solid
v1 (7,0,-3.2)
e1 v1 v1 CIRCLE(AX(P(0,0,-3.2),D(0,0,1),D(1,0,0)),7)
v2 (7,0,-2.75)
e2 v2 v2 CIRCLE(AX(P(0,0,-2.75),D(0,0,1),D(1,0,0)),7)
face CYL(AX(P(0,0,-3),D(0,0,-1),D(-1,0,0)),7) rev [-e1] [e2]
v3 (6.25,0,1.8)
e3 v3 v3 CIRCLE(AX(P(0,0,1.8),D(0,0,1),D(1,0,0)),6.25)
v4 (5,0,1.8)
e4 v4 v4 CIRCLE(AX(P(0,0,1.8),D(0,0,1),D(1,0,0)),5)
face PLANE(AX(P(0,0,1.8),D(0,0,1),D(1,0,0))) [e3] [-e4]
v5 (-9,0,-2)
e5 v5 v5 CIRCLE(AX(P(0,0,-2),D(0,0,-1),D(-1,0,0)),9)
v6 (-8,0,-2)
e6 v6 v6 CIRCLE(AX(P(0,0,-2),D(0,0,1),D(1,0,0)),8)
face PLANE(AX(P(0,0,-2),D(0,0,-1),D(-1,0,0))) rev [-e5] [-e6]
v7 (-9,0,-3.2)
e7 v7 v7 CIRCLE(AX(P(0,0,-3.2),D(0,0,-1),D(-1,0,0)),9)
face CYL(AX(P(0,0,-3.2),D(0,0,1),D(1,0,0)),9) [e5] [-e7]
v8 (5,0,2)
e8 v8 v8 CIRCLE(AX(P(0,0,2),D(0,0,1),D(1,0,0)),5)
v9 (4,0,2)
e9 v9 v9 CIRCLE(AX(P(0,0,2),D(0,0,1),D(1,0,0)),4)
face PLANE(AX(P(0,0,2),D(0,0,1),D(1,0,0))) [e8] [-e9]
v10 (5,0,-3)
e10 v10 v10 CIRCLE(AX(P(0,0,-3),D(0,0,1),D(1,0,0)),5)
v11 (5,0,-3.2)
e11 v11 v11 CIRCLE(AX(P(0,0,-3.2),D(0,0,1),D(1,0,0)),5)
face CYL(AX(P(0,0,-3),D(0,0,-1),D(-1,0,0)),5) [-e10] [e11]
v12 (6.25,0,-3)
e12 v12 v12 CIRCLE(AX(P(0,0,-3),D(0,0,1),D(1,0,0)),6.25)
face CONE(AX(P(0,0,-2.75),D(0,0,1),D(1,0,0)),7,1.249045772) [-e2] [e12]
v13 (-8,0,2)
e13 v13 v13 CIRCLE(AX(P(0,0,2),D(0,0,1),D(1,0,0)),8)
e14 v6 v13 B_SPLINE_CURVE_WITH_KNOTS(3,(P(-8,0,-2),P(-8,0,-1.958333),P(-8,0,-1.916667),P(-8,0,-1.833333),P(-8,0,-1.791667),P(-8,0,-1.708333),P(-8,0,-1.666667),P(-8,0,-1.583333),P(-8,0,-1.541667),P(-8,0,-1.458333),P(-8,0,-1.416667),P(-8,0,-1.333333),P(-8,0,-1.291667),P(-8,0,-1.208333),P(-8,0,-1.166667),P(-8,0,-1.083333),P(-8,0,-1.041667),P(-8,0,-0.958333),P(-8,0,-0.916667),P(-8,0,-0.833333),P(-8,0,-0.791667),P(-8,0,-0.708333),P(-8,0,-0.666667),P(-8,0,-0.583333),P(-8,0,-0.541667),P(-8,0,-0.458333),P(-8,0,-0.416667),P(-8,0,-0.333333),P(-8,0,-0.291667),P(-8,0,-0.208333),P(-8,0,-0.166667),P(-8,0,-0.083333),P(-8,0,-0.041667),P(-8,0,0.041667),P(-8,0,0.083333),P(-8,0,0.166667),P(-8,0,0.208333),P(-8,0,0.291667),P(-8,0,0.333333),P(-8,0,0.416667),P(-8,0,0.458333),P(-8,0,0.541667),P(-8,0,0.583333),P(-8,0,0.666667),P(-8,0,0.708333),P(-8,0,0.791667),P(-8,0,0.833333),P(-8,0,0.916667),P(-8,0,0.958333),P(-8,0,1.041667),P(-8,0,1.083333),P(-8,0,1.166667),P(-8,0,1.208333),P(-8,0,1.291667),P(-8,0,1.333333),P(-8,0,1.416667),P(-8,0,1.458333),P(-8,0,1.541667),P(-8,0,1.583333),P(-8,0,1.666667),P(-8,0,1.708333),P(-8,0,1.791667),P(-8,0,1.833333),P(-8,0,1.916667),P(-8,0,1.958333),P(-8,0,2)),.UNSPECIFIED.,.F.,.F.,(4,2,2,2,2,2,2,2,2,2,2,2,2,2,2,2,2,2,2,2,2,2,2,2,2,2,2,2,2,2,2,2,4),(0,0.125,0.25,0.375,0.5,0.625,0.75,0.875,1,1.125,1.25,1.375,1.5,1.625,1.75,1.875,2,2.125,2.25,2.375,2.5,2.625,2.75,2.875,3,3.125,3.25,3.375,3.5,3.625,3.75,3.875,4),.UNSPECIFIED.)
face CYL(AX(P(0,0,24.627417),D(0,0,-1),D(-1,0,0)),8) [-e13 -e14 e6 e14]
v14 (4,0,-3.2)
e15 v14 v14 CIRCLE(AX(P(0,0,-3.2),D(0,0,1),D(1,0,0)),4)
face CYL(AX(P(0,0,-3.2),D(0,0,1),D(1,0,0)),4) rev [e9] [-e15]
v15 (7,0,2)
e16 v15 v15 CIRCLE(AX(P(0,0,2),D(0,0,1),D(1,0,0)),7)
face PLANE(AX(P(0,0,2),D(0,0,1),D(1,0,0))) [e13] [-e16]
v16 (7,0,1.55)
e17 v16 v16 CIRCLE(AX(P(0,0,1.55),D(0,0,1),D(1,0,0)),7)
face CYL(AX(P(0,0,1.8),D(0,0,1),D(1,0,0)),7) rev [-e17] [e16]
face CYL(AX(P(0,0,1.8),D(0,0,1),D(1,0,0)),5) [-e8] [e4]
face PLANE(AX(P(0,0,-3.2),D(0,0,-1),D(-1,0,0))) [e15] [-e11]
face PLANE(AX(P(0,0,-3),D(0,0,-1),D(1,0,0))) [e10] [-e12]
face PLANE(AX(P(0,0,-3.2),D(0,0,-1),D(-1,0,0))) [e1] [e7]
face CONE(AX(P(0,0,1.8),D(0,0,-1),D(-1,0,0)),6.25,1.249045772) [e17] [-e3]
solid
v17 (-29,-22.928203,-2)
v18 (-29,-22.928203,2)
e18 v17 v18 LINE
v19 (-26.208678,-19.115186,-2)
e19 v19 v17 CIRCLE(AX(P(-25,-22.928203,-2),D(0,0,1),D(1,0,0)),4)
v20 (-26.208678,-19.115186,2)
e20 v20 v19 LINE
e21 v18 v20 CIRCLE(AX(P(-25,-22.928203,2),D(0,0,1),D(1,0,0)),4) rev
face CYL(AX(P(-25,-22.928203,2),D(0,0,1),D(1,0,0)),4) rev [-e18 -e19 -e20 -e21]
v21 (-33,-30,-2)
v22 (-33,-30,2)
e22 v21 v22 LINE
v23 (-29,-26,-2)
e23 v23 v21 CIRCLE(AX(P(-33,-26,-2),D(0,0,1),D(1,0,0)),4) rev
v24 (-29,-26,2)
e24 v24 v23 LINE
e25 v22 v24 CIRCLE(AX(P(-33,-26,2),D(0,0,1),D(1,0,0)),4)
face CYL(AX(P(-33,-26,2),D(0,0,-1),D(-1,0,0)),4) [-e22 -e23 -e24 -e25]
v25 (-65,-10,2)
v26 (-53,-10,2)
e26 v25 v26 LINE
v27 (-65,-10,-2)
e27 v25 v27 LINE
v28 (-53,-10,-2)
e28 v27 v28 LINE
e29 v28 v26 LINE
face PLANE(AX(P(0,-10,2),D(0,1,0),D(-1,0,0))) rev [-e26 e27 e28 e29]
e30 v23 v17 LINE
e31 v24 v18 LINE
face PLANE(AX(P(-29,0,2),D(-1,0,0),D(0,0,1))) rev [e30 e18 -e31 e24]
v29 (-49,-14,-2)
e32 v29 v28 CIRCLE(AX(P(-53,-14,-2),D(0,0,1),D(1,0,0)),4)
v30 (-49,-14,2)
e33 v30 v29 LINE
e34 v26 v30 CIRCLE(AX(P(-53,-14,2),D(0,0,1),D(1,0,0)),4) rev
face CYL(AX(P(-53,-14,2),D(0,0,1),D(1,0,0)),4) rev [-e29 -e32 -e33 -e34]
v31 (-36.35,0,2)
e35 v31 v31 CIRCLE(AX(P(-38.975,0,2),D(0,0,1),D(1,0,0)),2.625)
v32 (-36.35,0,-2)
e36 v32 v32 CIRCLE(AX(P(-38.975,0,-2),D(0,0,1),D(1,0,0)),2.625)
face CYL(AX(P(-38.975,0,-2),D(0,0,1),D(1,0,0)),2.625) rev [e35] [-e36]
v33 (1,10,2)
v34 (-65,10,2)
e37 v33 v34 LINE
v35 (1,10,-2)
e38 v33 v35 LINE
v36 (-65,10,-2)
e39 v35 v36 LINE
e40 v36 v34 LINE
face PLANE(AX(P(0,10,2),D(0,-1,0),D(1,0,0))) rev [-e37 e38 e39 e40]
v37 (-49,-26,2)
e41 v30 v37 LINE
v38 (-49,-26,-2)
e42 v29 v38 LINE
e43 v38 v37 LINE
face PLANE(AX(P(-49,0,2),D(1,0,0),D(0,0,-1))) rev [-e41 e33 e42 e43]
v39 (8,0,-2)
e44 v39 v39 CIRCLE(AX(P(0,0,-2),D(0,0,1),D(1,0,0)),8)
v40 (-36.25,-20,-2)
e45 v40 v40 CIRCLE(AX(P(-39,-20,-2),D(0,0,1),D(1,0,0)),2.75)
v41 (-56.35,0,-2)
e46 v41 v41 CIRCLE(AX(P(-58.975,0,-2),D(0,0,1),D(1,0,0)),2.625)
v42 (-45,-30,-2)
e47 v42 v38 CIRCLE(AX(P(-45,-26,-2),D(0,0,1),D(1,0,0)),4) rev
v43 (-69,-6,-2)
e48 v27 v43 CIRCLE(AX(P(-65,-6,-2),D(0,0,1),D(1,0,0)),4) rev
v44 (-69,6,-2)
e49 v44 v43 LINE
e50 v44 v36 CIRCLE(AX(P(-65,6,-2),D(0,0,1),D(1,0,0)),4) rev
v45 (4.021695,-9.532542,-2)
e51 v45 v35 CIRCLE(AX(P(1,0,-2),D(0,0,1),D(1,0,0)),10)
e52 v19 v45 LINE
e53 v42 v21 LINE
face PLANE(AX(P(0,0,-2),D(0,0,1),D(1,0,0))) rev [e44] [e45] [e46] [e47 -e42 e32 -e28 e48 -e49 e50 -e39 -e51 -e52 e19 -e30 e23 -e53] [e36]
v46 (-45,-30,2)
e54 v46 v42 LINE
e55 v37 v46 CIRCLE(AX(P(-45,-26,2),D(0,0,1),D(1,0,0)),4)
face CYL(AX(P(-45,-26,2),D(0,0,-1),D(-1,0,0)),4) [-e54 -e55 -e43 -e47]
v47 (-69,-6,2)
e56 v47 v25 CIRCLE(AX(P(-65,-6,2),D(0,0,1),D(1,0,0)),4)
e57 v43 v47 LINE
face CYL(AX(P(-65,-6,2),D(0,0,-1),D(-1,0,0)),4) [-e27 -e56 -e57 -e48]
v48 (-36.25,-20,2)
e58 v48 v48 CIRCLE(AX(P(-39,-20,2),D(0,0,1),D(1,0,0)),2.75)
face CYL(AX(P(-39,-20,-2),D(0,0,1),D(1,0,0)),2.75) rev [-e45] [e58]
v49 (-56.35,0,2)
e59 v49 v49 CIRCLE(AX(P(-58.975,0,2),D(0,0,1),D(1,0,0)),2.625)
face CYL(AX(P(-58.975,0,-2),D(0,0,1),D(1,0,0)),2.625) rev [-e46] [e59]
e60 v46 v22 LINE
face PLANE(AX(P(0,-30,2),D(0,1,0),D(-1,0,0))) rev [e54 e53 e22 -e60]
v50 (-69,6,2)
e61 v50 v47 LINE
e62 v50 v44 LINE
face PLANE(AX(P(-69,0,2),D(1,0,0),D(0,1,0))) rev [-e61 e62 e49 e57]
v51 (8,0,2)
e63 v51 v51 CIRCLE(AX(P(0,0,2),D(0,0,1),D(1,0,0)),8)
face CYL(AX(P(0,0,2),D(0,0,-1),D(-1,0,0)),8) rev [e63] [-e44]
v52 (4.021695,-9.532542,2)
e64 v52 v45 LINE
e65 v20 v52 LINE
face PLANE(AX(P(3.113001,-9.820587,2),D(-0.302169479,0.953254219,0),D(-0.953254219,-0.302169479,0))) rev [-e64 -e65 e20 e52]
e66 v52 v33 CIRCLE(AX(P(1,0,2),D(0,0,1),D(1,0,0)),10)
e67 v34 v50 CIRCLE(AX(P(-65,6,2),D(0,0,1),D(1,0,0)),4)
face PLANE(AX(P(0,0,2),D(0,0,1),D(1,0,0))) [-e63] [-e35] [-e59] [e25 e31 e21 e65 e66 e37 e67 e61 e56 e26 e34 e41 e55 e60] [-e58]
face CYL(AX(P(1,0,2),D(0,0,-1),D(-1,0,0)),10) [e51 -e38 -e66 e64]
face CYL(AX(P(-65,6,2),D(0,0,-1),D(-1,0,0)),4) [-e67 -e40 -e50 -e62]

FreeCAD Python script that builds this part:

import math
import FreeCAD as App
import Part
import Sketcher
Q = App.Units.Quantity


def edges_at(feature, points):
    """Names of the edges that pass closest to the given points."""
    edges = feature.Shape.Edges
    near = lambda p: min(range(len(edges)), key=lambda i: edges[i].distToShape(Part.Vertex(*p))[0])
    return sorted({f"Edge{near(p) + 1}" for p in points})


def add_polygon(sketch, points):
    """Adds a closed chain of lines whose ends are joined by coincident constraints."""
    first, n = sketch.GeometryCount, len(points)
    for a, b in zip(points, points[1:] + points[:1]):
        sketch.addGeometry(Part.LineSegment(App.Vector(*a, 0), App.Vector(*b, 0)), False)
    for i in range(n):
        sketch.addConstraint(Sketcher.Constraint("Coincident", first + i, 2, first + (i + 1) % n, 1))

doc = App.newDocument("Part")
body = doc.addObject("PartDesign::Body", "Body")

# Sketch on XY plane
sketch1 = body.newObject("Sketcher::SketchObject", "Sketch")
sketch1.AttachmentSupport = (doc.getObject("XY_Plane"), [""])
sketch1.MapMode = "FlatFace"
sketch1.addGeometry([
    Part.LineSegment(App.Vector(1, 10, 0), App.Vector(-69, 10, 0)),  # 0
    Part.LineSegment(App.Vector(-69, 10, 0), App.Vector(-69, -10, 0)),  # 1
    Part.LineSegment(App.Vector(-69, -10, 0), App.Vector(-49, -10, 0)),  # 2
    Part.LineSegment(App.Vector(-49, -10, 0), App.Vector(-49, -30, 0)),  # 3
    Part.LineSegment(App.Vector(-49, -30, 0), App.Vector(-29, -30, 0)),  # 4
    Part.LineSegment(App.Vector(-29, -30, 0), App.Vector(-29, -20, 0)),  # 5
    Part.LineSegment(App.Vector(-29, -20, 0), App.Vector(4.021695, -9.532542, 0)),  # 6
    Part.ArcOfCircle(Part.Circle(App.Vector(1, 0, 0), App.Vector(0, 0, 1), 10), math.radians(-72.412046), math.radians(90)),  # 7
    Part.Circle(App.Vector(0, 0, 0), App.Vector(0, 0, 1), 8),  # 8
], False)
sketch1.addConstraint([
    Sketcher.Constraint("Coincident", 0, 2, 1, 1),
    Sketcher.Constraint("Coincident", 1, 2, 2, 1),
    Sketcher.Constraint("Coincident", 2, 2, 3, 1),
    Sketcher.Constraint("Coincident", 3, 2, 4, 1),
    Sketcher.Constraint("Coincident", 4, 2, 5, 1),
    Sketcher.Constraint("Coincident", 5, 2, 6, 1),
    Sketcher.Constraint("Tangent", 6, 2, 7, 1),
    Sketcher.Constraint("Tangent", 7, 2, 0, 1),
    Sketcher.Constraint("Horizontal", 0),
    Sketcher.Constraint("Vertical", 1),
    Sketcher.Constraint("Horizontal", 2),
    Sketcher.Constraint("Vertical", 3),
    Sketcher.Constraint("Horizontal", 4),
    Sketcher.Constraint("Vertical", 5),
    Sketcher.Constraint("Coincident", 8, 3, -1, 1),
    Sketcher.Constraint("PointOnObject", 7, 3, -1),
    Sketcher.Constraint("Equal", 2, 4),
    Sketcher.Constraint("Equal", 4, 1),
    Sketcher.Constraint("Equal", 1, 3),
    Sketcher.Constraint("Diameter", 8, Q("16 mm")),
    Sketcher.Constraint("Radius", 7, Q("10 mm")),
    Sketcher.Constraint("DistanceX", 0, 2, 0, 1, Q("70 mm")),
    Sketcher.Constraint("DistanceX", 2, 1, 2, 2, Q("20 mm")),
    Sketcher.Constraint("DistanceY", 5, 1, 5, 2, Q("10 mm")),
    Sketcher.Constraint("DistanceX", -1, 1, 7, 3, Q("1 mm")),
])
pad1 = body.newObject("PartDesign::Pad", "Pad")
pad1.Profile = sketch1
pad1.Length = 4
pad1.Midplane = True

# Sketch on XY plane
sketch2 = body.newObject("Sketcher::SketchObject", "Sketch001")
sketch2.AttachmentSupport = (doc.getObject("XY_Plane"), [""])
sketch2.MapMode = "FlatFace"
sketch2.AttachmentOffset = App.Placement(App.Vector(0, 0, 2), App.Rotation())
sketch2.addGeometry([
    Part.Circle(App.Vector(-39, -20, 0), App.Vector(0, 0, 1), 2.75),
    Part.Circle(App.Vector(-58.975, 0, 0), App.Vector(0, 0, 1), 2.625),
    Part.Circle(App.Vector(-38.975, 0, 0), App.Vector(0, 0, 1), 2.625),
], False)
sketch2.addConstraint([
    Sketcher.Constraint("Equal", 1, 2),
    Sketcher.Constraint("PointOnObject", 1, 3, -1),
    Sketcher.Constraint("PointOnObject", 2, 3, -1),
    Sketcher.Constraint("Diameter", 0, Q("5.5 mm")),
    Sketcher.Constraint("Diameter", 1, Q("5.25 mm")),
    Sketcher.Constraint("DistanceX", 0, 3, -1, 1, Q("39 mm")),
    Sketcher.Constraint("DistanceY", 0, 3, -1, 1, Q("20 mm")),
    Sketcher.Constraint("DistanceX", 1, 3, 2, 3, Q("20 mm")),
    Sketcher.Constraint("DistanceX", 1, 3, -1, 1, Q("58.975 mm")),
])
pocket1 = body.newObject("PartDesign::Pocket", "Pocket")
pocket1.Profile = sketch2
pocket1.Type = "ThroughAll"
doc.recompute()

fillet = body.newObject("PartDesign::Fillet", "Fillet")
fillet.Base = (pocket1, edges_at(pocket1, [
    (-29, -20, 0),
    (-29, -30, 0),
    (-49, -30, 0),
    (-49, -10, 0),
    (-69, -10, 0),
    (-69, 10, 0),
]))
fillet.Radius = 4
body2 = doc.addObject("PartDesign::Body", "Body001")

# Sketch on XY plane
sketch3 = body2.newObject("Sketcher::SketchObject", "Sketch002")
sketch3.AttachmentSupport = (doc.getObject("XY_Plane001"), [""])
sketch3.MapMode = "FlatFace"
sketch3.AttachmentOffset = App.Placement(App.Vector(0, 0, -2), App.Rotation())
sketch3.addGeometry(Part.Circle(App.Vector(0, 0, 0), App.Vector(0, 0, 1), 9), False)
sketch3.addConstraint([
    Sketcher.Constraint("Coincident", 0, 3, -1, 1),
    Sketcher.Constraint("Diameter", 0, Q("18 mm")),
])
pad2 = body2.newObject("PartDesign::Pad", "Pad001")
pad2.Profile = sketch3
pad2.Length = 1.2
pad2.Reversed = True

# Sketch on XY plane
sketch4 = body2.newObject("Sketcher::SketchObject", "Sketch003")
sketch4.AttachmentSupport = (doc.getObject("XY_Plane001"), [""])
sketch4.MapMode = "FlatFace"
sketch4.AttachmentOffset = App.Placement(App.Vector(0, 0, -2), App.Rotation())
sketch4.addGeometry(Part.Circle(App.Vector(0, 0, 0), App.Vector(0, 0, 1), 8), False)
sketch4.addConstraint([
    Sketcher.Constraint("Coincident", 0, 3, -1, 1),
    Sketcher.Constraint("Diameter", 0, Q("16 mm")),
])
pad3 = body2.newObject("PartDesign::Pad", "Pad002")
pad3.Profile = sketch4
pad3.Length = 4

# Sketch on XY plane
sketch5 = body2.newObject("Sketcher::SketchObject", "Sketch004")
sketch5.AttachmentSupport = (doc.getObject("XY_Plane001"), [""])
sketch5.MapMode = "FlatFace"
sketch5.AttachmentOffset = App.Placement(App.Vector(0, 0, 2), App.Rotation())
sketch5.addGeometry(Part.Circle(App.Vector(0, 0, 0), App.Vector(0, 0, 1), 4), False)
sketch5.addConstraint([
    Sketcher.Constraint("Coincident", 0, 3, -1, 1),
    Sketcher.Constraint("Diameter", 0, Q("8 mm")),
])
pocket2 = body2.newObject("PartDesign::Pocket", "Pocket001")
pocket2.Profile = sketch5
pocket2.Type = "ThroughAll"

# Sketch on XY plane
sketch6 = body2.newObject("Sketcher::SketchObject", "Sketch005")
sketch6.AttachmentSupport = (doc.getObject("XY_Plane001"), [""])
sketch6.MapMode = "FlatFace"
sketch6.AttachmentOffset = App.Placement(App.Vector(0, 0, 2), App.Rotation())
sketch6.addGeometry([
    Part.Circle(App.Vector(0, 0, 0), App.Vector(0, 0, 1), 7),
    Part.Circle(App.Vector(0, 0, 0), App.Vector(0, 0, 1), 5),
], False)
sketch6.addConstraint([
    Sketcher.Constraint("Coincident", 0, 3, -1, 1),
    Sketcher.Constraint("Coincident", 1, 3, -1, 1),
    Sketcher.Constraint("Diameter", 0, Q("14 mm")),
    Sketcher.Constraint("Diameter", 1, Q("10 mm")),
])
pocket3 = body2.newObject("PartDesign::Pocket", "Pocket002")
pocket3.Profile = sketch6
pocket3.Length = 0.2
doc.recompute()

datumplane = body2.newObject("PartDesign::Plane", "DatumPlane")
datumplane.AttachmentSupport = (doc.getObject("XY_Plane001"), [""])
datumplane.MapMode = "FlatFace"
datumplane.AttachmentOffset = App.Placement(App.Vector(0, 0, -0.6), App.Rotation())
mirrored = body2.newObject("PartDesign::Mirrored", "Mirrored")
mirrored.Originals = [pocket3]
mirrored.MirrorPlane = (datumplane, [""])
body2.Tip = mirrored

# Sketch on YZ plane
sketch7 = body2.newObject("Sketcher::SketchObject", "Sketch006")
sketch7.AttachmentSupport = (doc.getObject("YZ_Plane001"), [""])
sketch7.MapMode = "FlatFace"
add_polygon(sketch7, [(6.25, 1.8), (7, 1.55), (7, 1.8)])  # lines 0-2
add_polygon(sketch7, [(7, -2.75), (6.25, -3), (7, -3)])  # lines 3-5
sketch7.addConstraint([
    Sketcher.Constraint("Vertical", 1),
    Sketcher.Constraint("Horizontal", 2),
    Sketcher.Constraint("Horizontal", 4),
    Sketcher.Constraint("Vertical", 5),
    Sketcher.Constraint("Vertical", 2, 2, 3, 2),
    Sketcher.Constraint("Vertical", 1, 2, 4, 2),
    Sketcher.Constraint("Equal", 1, 5),
    Sketcher.Constraint("DistanceX", -1, 1, 0, 2, Q("7 mm")),
    Sketcher.Constraint("DistanceY", 3, 2, -1, 1, Q("3 mm")),
    Sketcher.Constraint("DistanceX", 2, 2, 2, 1, Q("0.75 mm")),
    Sketcher.Constraint("DistanceY", 1, 1, 1, 2, Q("0.25 mm")),
    Sketcher.Constraint("DistanceY", -1, 1, 1, 2, Q("1.8 mm")),
])
groove = body2.newObject("PartDesign::Groove", "Groove")
groove.Profile = sketch7
groove.ReferenceAxis = (sketch7, ["V_Axis"])
groove.Angle = 360

doc.recompute()
